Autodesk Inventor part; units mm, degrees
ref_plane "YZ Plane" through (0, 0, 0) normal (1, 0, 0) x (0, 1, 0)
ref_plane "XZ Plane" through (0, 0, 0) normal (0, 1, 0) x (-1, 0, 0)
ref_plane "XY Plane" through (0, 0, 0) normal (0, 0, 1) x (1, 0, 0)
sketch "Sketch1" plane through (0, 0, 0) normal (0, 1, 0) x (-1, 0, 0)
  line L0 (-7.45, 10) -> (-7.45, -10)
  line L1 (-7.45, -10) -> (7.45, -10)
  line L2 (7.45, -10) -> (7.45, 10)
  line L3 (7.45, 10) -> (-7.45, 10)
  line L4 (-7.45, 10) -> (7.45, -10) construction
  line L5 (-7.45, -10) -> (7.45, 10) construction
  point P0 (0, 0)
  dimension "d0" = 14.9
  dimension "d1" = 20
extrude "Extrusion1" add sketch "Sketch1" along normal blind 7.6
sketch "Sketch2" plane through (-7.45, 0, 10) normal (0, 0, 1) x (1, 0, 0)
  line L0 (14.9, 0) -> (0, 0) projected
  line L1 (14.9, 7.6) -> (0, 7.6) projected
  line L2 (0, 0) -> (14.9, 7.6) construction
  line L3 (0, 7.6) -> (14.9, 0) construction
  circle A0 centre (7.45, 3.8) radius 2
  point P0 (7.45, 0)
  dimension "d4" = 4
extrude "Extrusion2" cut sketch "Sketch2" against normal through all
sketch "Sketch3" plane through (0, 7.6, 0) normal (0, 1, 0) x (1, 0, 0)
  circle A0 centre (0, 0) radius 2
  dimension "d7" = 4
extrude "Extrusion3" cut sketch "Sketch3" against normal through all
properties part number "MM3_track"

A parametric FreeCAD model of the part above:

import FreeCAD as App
import Part
import Sketcher
from FreeCAD import Vector
Q = App.Units.Quantity


def add_polygon(sketch, points):
    """Adds a closed chain of lines whose ends are joined by coincident constraints."""
    first, n = sketch.GeometryCount, len(points)
    for a, b in zip(points, points[1:] + points[:1]):
        sketch.addGeometry(Part.LineSegment(App.Vector(*a, 0), App.Vector(*b, 0)), False)
    for i in range(n):
        sketch.addConstraint(Sketcher.Constraint("Coincident", first + i, 2, first + (i + 1) % n, 1))

doc = App.newDocument("Part")
params = doc.addObject("Spreadsheet::Sheet", "Params")
for row, (alias, value) in enumerate([
    ("sketch1_height", "20 mm"),
    ("sketch1_width", "14.9 mm"),
    ("pad1_length", "7.6 mm"),
    ("sketch2_diameter", "4 mm"),
    ("sketch3_diameter", "4 mm"),
], start=1):
    params.set(f"A{row}", alias)
    params.set(f"B{row}", "=" + value)
    params.setAlias(f"B{row}", alias)

body = doc.addObject("PartDesign::Body", "Body")

# Sketch on XZ plane
sketch1 = body.newObject("Sketcher::SketchObject", "Sketch")
sketch1.AttachmentSupport = (doc.getObject("XZ_Plane"), [""])
sketch1.MapMode = "FlatFace"
add_polygon(sketch1, [(-7, 10), (7, 10), (7, -10), (-7, -10)])  # lines 0-3
sketch1.addConstraint([
    Sketcher.Constraint("Horizontal", 0),
    Sketcher.Constraint("Vertical", 1),
    Sketcher.Constraint("Horizontal", 2),
    Sketcher.Constraint("Vertical", 3),
    Sketcher.Constraint("Symmetric", 0, 2, 2, 2, -1, 1),
    Sketcher.Constraint("DistanceY", 1, 2, 1, 1, Q("20 mm")),
    Sketcher.Constraint("DistanceX", 0, 1, 0, 2, Q("14.9 mm")),
])
sketch1.setExpression("Constraints[9]", "Params.sketch1_height")
sketch1.setExpression("Constraints[10]", "Params.sketch1_width")
pad1 = body.newObject("PartDesign::Pad", "Pad")
pad1.Profile = sketch1
pad1.setExpression("Length", "Params.pad1_length")
pad1.Reversed = True

# Sketch on XY plane
sketch2 = body.newObject("Sketcher::SketchObject", "Sketch001")
sketch2.AttachmentSupport = (doc.getObject("XY_Plane"), [""])
sketch2.MapMode = "FlatFace"
sketch2.AttachmentOffset = App.Placement(Vector(0, 0, 10), App.Rotation())
sketch2.addGeometry(Part.Circle(Vector(0, 3.8, 0), Vector(0, 0, 1), 2), False)
sketch2.addConstraint([
    Sketcher.Constraint("PointOnObject", 0, 3, -2),
    Sketcher.Constraint("Diameter", 0, Q("4 mm")),
    Sketcher.Constraint("DistanceY", -1, 1, 0, 3, Q("3.8 mm")),
])
sketch2.setExpression("Constraints[1]", "Params.sketch2_diameter")
pocket1 = body.newObject("PartDesign::Pocket", "Pocket")
pocket1.Profile = sketch2
pocket1.Type = "ThroughAll"

# Sketch on XZ plane
sketch3 = body.newObject("Sketcher::SketchObject", "Sketch002")
sketch3.AttachmentSupport = (doc.getObject("XZ_Plane"), [""])
sketch3.MapMode = "FlatFace"
sketch3.AttachmentOffset = App.Placement(Vector(0, 0, -7.6), App.Rotation())
sketch3.addGeometry(Part.Circle(Vector(0, 0, 0), Vector(0, 0, 1), 2), False)
sketch3.addConstraint([
    Sketcher.Constraint("Coincident", 0, 3, -1, 1),
    Sketcher.Constraint("Diameter", 0, Q("4 mm")),
])
sketch3.setExpression("Constraints[1]", "Params.sketch3_diameter")
pocket2 = body.newObject("PartDesign::Pocket", "Pocket001")
pocket2.Profile = sketch3
pocket2.Type = "ThroughAll"
pocket2.Reversed = True

doc.recompute()
